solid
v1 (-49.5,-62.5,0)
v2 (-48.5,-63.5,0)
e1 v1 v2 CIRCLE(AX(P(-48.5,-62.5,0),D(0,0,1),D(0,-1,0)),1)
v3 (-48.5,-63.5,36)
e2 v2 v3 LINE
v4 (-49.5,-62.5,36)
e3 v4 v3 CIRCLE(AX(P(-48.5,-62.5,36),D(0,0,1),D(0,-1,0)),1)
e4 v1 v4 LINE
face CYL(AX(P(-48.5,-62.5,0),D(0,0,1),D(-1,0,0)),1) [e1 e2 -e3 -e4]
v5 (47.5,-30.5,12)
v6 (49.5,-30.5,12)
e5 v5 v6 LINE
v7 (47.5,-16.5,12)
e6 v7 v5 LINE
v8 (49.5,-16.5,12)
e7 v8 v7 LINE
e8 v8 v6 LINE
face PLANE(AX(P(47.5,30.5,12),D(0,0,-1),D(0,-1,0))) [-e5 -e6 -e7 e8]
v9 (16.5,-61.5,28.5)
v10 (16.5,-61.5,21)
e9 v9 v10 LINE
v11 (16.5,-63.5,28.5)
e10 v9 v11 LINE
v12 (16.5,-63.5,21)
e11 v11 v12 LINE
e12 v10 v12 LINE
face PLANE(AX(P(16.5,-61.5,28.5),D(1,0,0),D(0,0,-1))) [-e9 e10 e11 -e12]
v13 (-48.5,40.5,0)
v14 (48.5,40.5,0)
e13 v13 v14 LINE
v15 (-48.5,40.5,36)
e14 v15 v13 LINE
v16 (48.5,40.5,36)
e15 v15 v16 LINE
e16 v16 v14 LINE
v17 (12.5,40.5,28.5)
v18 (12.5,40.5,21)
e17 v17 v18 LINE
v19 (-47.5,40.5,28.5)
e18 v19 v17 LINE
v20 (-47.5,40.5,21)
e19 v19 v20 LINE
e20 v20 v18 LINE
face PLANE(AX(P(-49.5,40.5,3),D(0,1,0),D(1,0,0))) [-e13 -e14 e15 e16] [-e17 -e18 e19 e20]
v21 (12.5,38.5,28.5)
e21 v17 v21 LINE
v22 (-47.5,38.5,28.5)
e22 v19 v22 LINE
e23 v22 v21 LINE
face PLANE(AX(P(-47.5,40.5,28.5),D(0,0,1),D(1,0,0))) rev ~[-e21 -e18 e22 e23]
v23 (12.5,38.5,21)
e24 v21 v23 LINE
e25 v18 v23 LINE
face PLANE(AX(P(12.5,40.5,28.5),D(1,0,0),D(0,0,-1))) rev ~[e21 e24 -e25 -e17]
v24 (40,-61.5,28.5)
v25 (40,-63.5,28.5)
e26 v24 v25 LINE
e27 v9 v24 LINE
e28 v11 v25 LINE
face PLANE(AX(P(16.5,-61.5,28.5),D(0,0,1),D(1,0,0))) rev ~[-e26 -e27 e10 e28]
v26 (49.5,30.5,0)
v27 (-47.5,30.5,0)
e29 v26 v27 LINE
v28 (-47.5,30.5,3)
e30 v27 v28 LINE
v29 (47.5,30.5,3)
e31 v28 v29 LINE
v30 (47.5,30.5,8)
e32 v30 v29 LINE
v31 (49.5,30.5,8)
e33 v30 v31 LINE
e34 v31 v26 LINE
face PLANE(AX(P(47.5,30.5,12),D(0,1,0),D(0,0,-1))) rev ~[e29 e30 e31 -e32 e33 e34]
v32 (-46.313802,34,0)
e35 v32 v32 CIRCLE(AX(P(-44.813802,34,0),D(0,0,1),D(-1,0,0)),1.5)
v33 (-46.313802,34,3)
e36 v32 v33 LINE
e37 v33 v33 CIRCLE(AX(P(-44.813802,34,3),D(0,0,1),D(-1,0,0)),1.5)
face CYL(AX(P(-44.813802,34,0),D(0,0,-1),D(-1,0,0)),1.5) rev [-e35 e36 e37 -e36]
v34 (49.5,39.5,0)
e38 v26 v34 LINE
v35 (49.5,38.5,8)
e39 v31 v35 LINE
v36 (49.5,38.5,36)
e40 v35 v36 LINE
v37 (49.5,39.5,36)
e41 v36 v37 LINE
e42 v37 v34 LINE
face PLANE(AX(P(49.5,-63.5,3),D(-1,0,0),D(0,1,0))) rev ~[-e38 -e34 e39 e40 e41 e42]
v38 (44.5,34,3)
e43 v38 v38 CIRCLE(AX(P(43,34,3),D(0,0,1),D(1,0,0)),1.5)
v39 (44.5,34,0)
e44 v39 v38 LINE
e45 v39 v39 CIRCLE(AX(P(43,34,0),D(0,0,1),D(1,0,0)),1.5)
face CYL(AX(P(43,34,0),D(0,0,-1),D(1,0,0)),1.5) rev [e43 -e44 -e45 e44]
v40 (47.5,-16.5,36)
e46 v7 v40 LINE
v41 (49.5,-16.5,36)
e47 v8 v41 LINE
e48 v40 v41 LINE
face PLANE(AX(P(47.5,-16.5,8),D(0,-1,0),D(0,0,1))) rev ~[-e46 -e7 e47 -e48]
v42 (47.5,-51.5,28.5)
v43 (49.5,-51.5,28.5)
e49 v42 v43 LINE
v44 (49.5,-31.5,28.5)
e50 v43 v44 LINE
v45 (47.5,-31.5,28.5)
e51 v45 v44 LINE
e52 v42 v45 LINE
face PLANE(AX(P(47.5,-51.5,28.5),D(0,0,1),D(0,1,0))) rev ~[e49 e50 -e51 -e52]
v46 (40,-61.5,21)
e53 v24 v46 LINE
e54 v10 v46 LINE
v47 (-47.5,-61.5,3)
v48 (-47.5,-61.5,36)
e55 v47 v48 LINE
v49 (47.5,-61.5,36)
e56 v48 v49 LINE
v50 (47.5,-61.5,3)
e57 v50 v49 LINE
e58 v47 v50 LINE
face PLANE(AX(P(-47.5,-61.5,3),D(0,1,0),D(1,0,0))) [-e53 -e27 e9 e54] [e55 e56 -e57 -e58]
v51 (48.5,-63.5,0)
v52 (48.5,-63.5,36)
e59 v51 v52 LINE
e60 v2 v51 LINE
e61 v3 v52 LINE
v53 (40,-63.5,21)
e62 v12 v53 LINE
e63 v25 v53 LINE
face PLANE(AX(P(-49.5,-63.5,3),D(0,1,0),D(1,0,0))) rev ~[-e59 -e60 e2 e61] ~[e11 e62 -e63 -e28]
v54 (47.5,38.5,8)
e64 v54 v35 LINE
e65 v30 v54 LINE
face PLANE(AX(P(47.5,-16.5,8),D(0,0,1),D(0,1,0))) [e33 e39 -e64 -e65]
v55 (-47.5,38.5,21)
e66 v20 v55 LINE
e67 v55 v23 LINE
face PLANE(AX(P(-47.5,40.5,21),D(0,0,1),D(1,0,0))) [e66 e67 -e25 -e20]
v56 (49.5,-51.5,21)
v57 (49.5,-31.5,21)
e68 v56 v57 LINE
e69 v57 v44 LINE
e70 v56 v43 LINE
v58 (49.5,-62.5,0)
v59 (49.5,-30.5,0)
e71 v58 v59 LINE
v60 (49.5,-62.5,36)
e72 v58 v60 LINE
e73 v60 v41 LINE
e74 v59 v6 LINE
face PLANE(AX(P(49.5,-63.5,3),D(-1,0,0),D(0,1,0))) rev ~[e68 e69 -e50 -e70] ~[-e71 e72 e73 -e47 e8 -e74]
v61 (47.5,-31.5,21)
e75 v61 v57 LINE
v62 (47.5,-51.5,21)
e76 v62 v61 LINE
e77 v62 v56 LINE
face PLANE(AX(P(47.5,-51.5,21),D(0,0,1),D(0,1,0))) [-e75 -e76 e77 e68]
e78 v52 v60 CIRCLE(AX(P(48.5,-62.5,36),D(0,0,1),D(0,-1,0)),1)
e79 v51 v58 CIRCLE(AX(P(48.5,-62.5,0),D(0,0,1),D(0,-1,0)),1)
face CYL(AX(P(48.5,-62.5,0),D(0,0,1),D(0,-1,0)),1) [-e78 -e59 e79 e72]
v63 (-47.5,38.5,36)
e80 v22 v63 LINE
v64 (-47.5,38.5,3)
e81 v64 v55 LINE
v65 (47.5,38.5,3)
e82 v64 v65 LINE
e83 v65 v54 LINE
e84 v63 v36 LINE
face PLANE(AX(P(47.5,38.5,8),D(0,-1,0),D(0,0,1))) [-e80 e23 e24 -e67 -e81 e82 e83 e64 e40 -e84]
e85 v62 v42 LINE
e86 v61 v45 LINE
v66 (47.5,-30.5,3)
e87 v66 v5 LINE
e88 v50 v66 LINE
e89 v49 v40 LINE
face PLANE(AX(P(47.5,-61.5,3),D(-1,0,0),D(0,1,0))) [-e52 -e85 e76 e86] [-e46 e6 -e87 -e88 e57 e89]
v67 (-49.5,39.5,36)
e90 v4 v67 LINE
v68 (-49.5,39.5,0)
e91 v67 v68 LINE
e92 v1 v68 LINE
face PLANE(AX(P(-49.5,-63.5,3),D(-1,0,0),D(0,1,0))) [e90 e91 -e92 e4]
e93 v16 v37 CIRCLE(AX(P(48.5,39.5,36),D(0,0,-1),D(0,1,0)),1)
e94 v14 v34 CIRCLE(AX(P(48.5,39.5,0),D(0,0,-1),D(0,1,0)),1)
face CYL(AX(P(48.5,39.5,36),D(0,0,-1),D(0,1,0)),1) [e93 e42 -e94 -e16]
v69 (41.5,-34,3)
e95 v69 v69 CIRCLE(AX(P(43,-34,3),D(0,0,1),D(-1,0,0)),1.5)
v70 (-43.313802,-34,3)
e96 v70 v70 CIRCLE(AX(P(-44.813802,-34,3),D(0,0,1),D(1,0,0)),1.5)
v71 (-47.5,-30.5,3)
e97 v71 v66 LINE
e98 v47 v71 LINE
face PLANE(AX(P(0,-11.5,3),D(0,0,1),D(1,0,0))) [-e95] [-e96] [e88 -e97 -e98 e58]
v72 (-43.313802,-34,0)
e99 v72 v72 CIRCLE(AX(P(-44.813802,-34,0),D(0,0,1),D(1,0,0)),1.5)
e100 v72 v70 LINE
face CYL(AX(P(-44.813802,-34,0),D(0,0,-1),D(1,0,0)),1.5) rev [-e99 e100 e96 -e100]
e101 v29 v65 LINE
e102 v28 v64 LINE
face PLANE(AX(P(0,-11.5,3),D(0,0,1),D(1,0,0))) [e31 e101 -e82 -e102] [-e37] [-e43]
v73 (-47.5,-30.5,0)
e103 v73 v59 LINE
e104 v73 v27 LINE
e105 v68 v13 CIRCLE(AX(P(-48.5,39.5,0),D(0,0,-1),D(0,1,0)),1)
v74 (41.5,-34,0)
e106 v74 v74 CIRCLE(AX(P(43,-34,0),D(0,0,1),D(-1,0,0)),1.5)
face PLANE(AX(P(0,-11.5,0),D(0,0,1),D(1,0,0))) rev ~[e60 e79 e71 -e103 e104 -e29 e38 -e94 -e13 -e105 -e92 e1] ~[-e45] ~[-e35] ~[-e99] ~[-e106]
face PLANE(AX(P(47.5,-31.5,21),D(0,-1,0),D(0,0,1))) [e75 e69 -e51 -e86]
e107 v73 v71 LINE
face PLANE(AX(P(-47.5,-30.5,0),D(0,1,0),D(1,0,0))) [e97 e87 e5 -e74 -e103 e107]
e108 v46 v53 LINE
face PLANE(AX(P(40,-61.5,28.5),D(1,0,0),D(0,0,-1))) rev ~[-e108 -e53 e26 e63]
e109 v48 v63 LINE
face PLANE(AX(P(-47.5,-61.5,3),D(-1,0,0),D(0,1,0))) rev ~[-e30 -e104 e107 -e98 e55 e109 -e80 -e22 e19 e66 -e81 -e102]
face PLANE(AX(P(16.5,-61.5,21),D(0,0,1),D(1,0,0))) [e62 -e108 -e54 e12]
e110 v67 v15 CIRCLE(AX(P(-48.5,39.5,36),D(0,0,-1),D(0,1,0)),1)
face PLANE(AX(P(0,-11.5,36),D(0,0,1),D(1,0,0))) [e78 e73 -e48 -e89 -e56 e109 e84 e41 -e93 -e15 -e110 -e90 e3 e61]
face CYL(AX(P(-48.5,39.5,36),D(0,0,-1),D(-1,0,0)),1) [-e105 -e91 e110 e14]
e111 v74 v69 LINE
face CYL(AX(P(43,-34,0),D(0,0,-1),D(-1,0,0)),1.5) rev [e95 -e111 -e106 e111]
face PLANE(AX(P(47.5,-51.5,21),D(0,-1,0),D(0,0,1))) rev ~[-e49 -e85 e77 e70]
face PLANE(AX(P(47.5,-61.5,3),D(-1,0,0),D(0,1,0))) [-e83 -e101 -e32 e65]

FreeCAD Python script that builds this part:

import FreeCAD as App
import Part
import Sketcher
Q = App.Units.Quantity


def edges_at(feature, points):
    """Names of the edges that pass closest to the given points."""
    edges = feature.Shape.Edges
    near = lambda p: min(range(len(edges)), key=lambda i: edges[i].distToShape(Part.Vertex(*p))[0])
    return sorted({f"Edge{near(p) + 1}" for p in points})

doc = App.newDocument("Part")
body = doc.addObject("PartDesign::Body", "Body")

# Sketch on XY plane
sketch1 = doc.addObject("Sketcher::SketchObject", "Sketch")
body.addObject(sketch1)
sketch1.AttachmentSupport = (doc.XY_Plane, [""])
sketch1.MapMode = "FlatFace"
sketch1.addGeometry([
    Part.LineSegment(App.Vector(-49.5, 40.5, 0), App.Vector(-49.5, -63.5, 0)),  # 0
    Part.LineSegment(App.Vector(-49.5, -63.5, 0), App.Vector(49.5, -63.5, 0)),  # 1
    Part.LineSegment(App.Vector(49.5, -63.5, 0), App.Vector(49.5, 40.5, 0)),  # 2
    Part.LineSegment(App.Vector(49.5, 40.5, 0), App.Vector(-49.5, 40.5, 0)),  # 3
    Part.Circle(App.Vector(-44.8, -34, 0), App.Vector(0, 0, 1), 1.5),  # 4
    Part.Circle(App.Vector(43, -34, 0), App.Vector(0, 0, 1), 1.5),  # 5
    Part.Circle(App.Vector(-44.8, 34, 0), App.Vector(0, 0, 1), 1.5),  # 6
    Part.LineSegment(App.Vector(47.5, -30.5, 0), App.Vector(-47.5, -30.5, 0)),  # 7
    Part.LineSegment(App.Vector(-47.5, -30.5, 0), App.Vector(-47.5, 30.5, 0)),  # 8
    Part.LineSegment(App.Vector(-47.5, 30.5, 0), App.Vector(47.5, 30.5, 0)),  # 9
    Part.LineSegment(App.Vector(47.5, 30.5, 0), App.Vector(47.5, -30.5, 0)),  # 10
    Part.Circle(App.Vector(43, 34, 0), App.Vector(0, 0, 1), 1.5),  # 11
], False)
sketch1.addConstraint([
    Sketcher.Constraint("Coincident", 0, 2, 1, 1),
    Sketcher.Constraint("Coincident", 1, 2, 2, 1),
    Sketcher.Constraint("Coincident", 2, 2, 3, 1),
    Sketcher.Constraint("Coincident", 3, 2, 0, 1),
    Sketcher.Constraint("Coincident", 7, 2, 8, 1),
    Sketcher.Constraint("Coincident", 8, 2, 9, 1),
    Sketcher.Constraint("Coincident", 9, 2, 10, 1),
    Sketcher.Constraint("Coincident", 10, 2, 7, 1),
    Sketcher.Constraint("Vertical", 0),
    Sketcher.Constraint("Horizontal", 1),
    Sketcher.Constraint("Vertical", 2),
    Sketcher.Constraint("Horizontal", 3),
    Sketcher.Constraint("Horizontal", 7),
    Sketcher.Constraint("Vertical", 8),
    Sketcher.Constraint("Horizontal", 9),
    Sketcher.Constraint("Vertical", 10),
    Sketcher.Constraint("Equal", 4, 5),
    Sketcher.Constraint("Equal", 5, 6),
    Sketcher.Constraint("Equal", 6, 11),
    Sketcher.Constraint("Symmetric", 7, 2, 9, 2, -1, 1),
    Sketcher.Constraint("Symmetric", 4, 3, 6, 3, -1),
    Sketcher.Constraint("Symmetric", 5, 3, 11, 3, -1),
    Sketcher.Constraint("Horizontal", 4, 3, 5, 3),
    Sketcher.Constraint("Diameter", 4, Q("3 mm")),
    Sketcher.Constraint("DistanceX", 1, 1, 1, 2, Q("99 mm")),
    Sketcher.Constraint("DistanceX", 7, 2, 7, 1, Q("95 mm")),
    Sketcher.Constraint("DistanceY", 0, 2, 0, 1, Q("104 mm")),
    Sketcher.Constraint("DistanceY", 8, 1, 8, 2, Q("61 mm")),
    Sketcher.Constraint("DistanceY", 4, 3, -1, 1, Q("34 mm")),
    Sketcher.Constraint("DistanceX", -1, 1, 5, 3, Q("43 mm")),
    Sketcher.Constraint("DistanceX", 0, 2, 7, 2, Q("2 mm")),
    Sketcher.Constraint("DistanceY", 0, 2, 7, 2, Q("33 mm")),
    Sketcher.Constraint("DistanceX", 4, 3, -1, 1, Q("44.813802 mm")),
])
pad1 = doc.addObject("PartDesign::Pad", "Pad")
body.addObject(pad1)
pad1.Profile = sketch1
pad1.Length = 3

# Sketch on XY plane
sketch2 = doc.addObject("Sketcher::SketchObject", "Sketch001")
body.addObject(sketch2)
sketch2.AttachmentSupport = (doc.XY_Plane, [""])
sketch2.MapMode = "FlatFace"
sketch2.AttachmentOffset = App.Placement(App.Vector(0, 0, 3), App.Rotation())
sketch2.addGeometry([
    Part.LineSegment(App.Vector(-50, 40, 0), App.Vector(-50, -64, 0)),  # 0
    Part.LineSegment(App.Vector(-50, -64, 0), App.Vector(50, -64, 0)),  # 1
    Part.LineSegment(App.Vector(50, -64, 0), App.Vector(50, 40, 0)),  # 2
    Part.LineSegment(App.Vector(50, 40, 0), App.Vector(-50, 40, 0)),  # 3
    Part.LineSegment(App.Vector(48, -62, 0), App.Vector(-48, -62, 0)),  # 4
    Part.LineSegment(App.Vector(-48, -62, 0), App.Vector(-48, 38, 0)),  # 5
    Part.LineSegment(App.Vector(-48, 38, 0), App.Vector(48, 38, 0)),  # 6
    Part.LineSegment(App.Vector(48, 38, 0), App.Vector(48, -62, 0)),  # 7
], False)
sketch2.addConstraint([
    Sketcher.Constraint("Coincident", 0, 2, 1, 1),
    Sketcher.Constraint("Coincident", 1, 2, 2, 1),
    Sketcher.Constraint("Coincident", 2, 2, 3, 1),
    Sketcher.Constraint("Coincident", 3, 2, 0, 1),
    Sketcher.Constraint("Coincident", 4, 2, 5, 1),
    Sketcher.Constraint("Coincident", 5, 2, 6, 1),
    Sketcher.Constraint("Coincident", 6, 2, 7, 1),
    Sketcher.Constraint("Coincident", 7, 2, 4, 1),
    Sketcher.Constraint("Vertical", 0),
    Sketcher.Constraint("Horizontal", 1),
    Sketcher.Constraint("Vertical", 2),
    Sketcher.Constraint("Horizontal", 3),
    Sketcher.Constraint("Horizontal", 4),
    Sketcher.Constraint("Vertical", 5),
    Sketcher.Constraint("Horizontal", 6),
    Sketcher.Constraint("Vertical", 7),
    Sketcher.Constraint("DistanceX", 1, 1, 1, 2, Q("99 mm")),
    Sketcher.Constraint("DistanceX", 4, 2, 4, 1, Q("95 mm")),
    Sketcher.Constraint("DistanceY", 0, 2, 0, 1, Q("104 mm")),
    Sketcher.Constraint("DistanceY", 5, 1, 5, 2, Q("100 mm")),
    Sketcher.Constraint("DistanceX", 0, 2, 4, 2, Q("2 mm")),
    Sketcher.Constraint("DistanceY", 0, 2, 4, 2, Q("2 mm")),
    Sketcher.Constraint("DistanceX", 0, 2, -1, 1, Q("49.5 mm")),
    Sketcher.Constraint("DistanceY", 0, 2, -1, 1, Q("63.5 mm")),
])
pad2 = doc.addObject("PartDesign::Pad", "Pad001")
body.addObject(pad2)
pad2.Profile = sketch2
pad2.Length = 33

# Sketch on YZ plane
sketch3 = doc.addObject("Sketcher::SketchObject", "Sketch002")
body.addObject(sketch3)
sketch3.AttachmentSupport = (doc.YZ_Plane, [""])
sketch3.MapMode = "FlatFace"
sketch3.AttachmentOffset = App.Placement(App.Vector(0, 0, 47.5), App.Rotation())
sketch3.addGeometry([
    Part.LineSegment(App.Vector(30, 12, 0), App.Vector(30, 0, 0)),
    Part.LineSegment(App.Vector(30, 0, 0), App.Vector(-30, 0, 0)),
    Part.LineSegment(App.Vector(-30, 0, 0), App.Vector(-30, 12, 0)),
    Part.LineSegment(App.Vector(-30, 12, 0), App.Vector(30, 12, 0)),
], False)
sketch3.addConstraint([
    Sketcher.Constraint("Coincident", 0, 2, 1, 1),
    Sketcher.Constraint("Coincident", 1, 2, 2, 1),
    Sketcher.Constraint("Coincident", 2, 2, 3, 1),
    Sketcher.Constraint("Coincident", 3, 2, 0, 1),
    Sketcher.Constraint("Vertical", 0),
    Sketcher.Constraint("Horizontal", 1),
    Sketcher.Constraint("Vertical", 2),
    Sketcher.Constraint("Horizontal", 3),
    Sketcher.Constraint("Symmetric", 0, 2, 1, 2, -1, 1),
    Sketcher.Constraint("DistanceX", 1, 2, 1, 1, Q("61 mm")),
    Sketcher.Constraint("DistanceY", 0, 2, 0, 1, Q("12 mm")),
])
pocket1 = doc.addObject("PartDesign::Pocket", "Pocket")
body.addObject(pocket1)
pocket1.Profile = sketch3
pocket1.Length = 30
pocket1.Reversed = True

# Sketch on XZ plane
sketch4 = doc.addObject("Sketcher::SketchObject", "Sketch003")
body.addObject(sketch4)
sketch4.AttachmentSupport = (doc.XZ_Plane, [""])
sketch4.MapMode = "FlatFace"
sketch4.AttachmentOffset = App.Placement(App.Vector(0, 0, -40.5), App.Rotation())
sketch4.addGeometry([
    Part.LineSegment(App.Vector(-48, 21, 0), App.Vector(-48, 28, 0)),
    Part.LineSegment(App.Vector(-48, 28, 0), App.Vector(12, 28, 0)),
    Part.LineSegment(App.Vector(12, 28, 0), App.Vector(12, 21, 0)),
    Part.LineSegment(App.Vector(12, 21, 0), App.Vector(-48, 21, 0)),
], False)
sketch4.addConstraint([
    Sketcher.Constraint("Coincident", 0, 2, 1, 1),
    Sketcher.Constraint("Coincident", 1, 2, 2, 1),
    Sketcher.Constraint("Coincident", 2, 2, 3, 1),
    Sketcher.Constraint("Coincident", 3, 2, 0, 1),
    Sketcher.Constraint("Vertical", 0),
    Sketcher.Constraint("Horizontal", 1),
    Sketcher.Constraint("Vertical", 2),
    Sketcher.Constraint("Horizontal", 3),
    Sketcher.Constraint("DistanceX", 1, 1, 1, 2, Q("60 mm")),
    Sketcher.Constraint("DistanceY", 0, 1, 0, 2, Q("7.5 mm")),
    Sketcher.Constraint("DistanceY", -1, 1, 2, 2, Q("21 mm")),
    Sketcher.Constraint("DistanceX", 0, 2, -1, 1, Q("47.5 mm")),
])
pocket2 = doc.addObject("PartDesign::Pocket", "Pocket001")
body.addObject(pocket2)
pocket2.Profile = sketch4
pocket2.Length = 30
pocket2.Reversed = True

# Sketch on YZ plane
sketch5 = doc.addObject("Sketcher::SketchObject", "Sketch004")
body.addObject(sketch5)
sketch5.AttachmentSupport = (doc.YZ_Plane, [""])
sketch5.MapMode = "FlatFace"
sketch5.AttachmentOffset = App.Placement(App.Vector(0, 0, 47.5), App.Rotation())
sketch5.addGeometry([
    Part.LineSegment(App.Vector(38, 8, 0), App.Vector(-16, 8, 0)),
    Part.LineSegment(App.Vector(-16, 8, 0), App.Vector(-16, 36, 0)),
    Part.LineSegment(App.Vector(-16, 36, 0), App.Vector(38, 36, 0)),
    Part.LineSegment(App.Vector(38, 36, 0), App.Vector(38, 8, 0)),
], False)
sketch5.addConstraint([
    Sketcher.Constraint("Coincident", 0, 2, 1, 1),
    Sketcher.Constraint("Coincident", 1, 2, 2, 1),
    Sketcher.Constraint("Coincident", 2, 2, 3, 1),
    Sketcher.Constraint("Coincident", 3, 2, 0, 1),
    Sketcher.Constraint("Horizontal", 0),
    Sketcher.Constraint("Vertical", 1),
    Sketcher.Constraint("Horizontal", 2),
    Sketcher.Constraint("Vertical", 3),
    Sketcher.Constraint("DistanceX", 0, 2, 0, 1, Q("55 mm")),
    Sketcher.Constraint("DistanceY", 1, 1, 1, 2, Q("28 mm")),
    Sketcher.Constraint("DistanceY", -1, 1, 0, 2, Q("8 mm")),
    Sketcher.Constraint("DistanceX", 0, 2, -1, 1, Q("16.5 mm")),
])
pocket3 = doc.addObject("PartDesign::Pocket", "Pocket002")
body.addObject(pocket3)
pocket3.Profile = sketch5
pocket3.Length = 30
pocket3.Reversed = True

# Sketch on YZ plane
sketch6 = doc.addObject("Sketcher::SketchObject", "Sketch005")
body.addObject(sketch6)
sketch6.AttachmentSupport = (doc.YZ_Plane, [""])
sketch6.MapMode = "FlatFace"
sketch6.AttachmentOffset = App.Placement(App.Vector(0, 0, 47.5), App.Rotation())
sketch6.addGeometry([
    Part.LineSegment(App.Vector(-32, 21, 0), App.Vector(-52, 21, 0)),
    Part.LineSegment(App.Vector(-52, 21, 0), App.Vector(-52, 28, 0)),
    Part.LineSegment(App.Vector(-52, 28, 0), App.Vector(-32, 28, 0)),
    Part.LineSegment(App.Vector(-32, 28, 0), App.Vector(-32, 21, 0)),
], False)
sketch6.addConstraint([
    Sketcher.Constraint("Coincident", 0, 2, 1, 1),
    Sketcher.Constraint("Coincident", 1, 2, 2, 1),
    Sketcher.Constraint("Coincident", 2, 2, 3, 1),
    Sketcher.Constraint("Coincident", 3, 2, 0, 1),
    Sketcher.Constraint("Horizontal", 0),
    Sketcher.Constraint("Vertical", 1),
    Sketcher.Constraint("Horizontal", 2),
    Sketcher.Constraint("Vertical", 3),
    Sketcher.Constraint("DistanceX", 0, 2, 0, 1, Q("20 mm")),
    Sketcher.Constraint("DistanceY", 1, 1, 1, 2, Q("7.5 mm")),
    Sketcher.Constraint("DistanceY", -1, 1, 0, 2, Q("21 mm")),
    Sketcher.Constraint("DistanceX", 0, 2, -1, 1, Q("51.5 mm")),
])
pocket4 = doc.addObject("PartDesign::Pocket", "Pocket003")
body.addObject(pocket4)
pocket4.Profile = sketch6
pocket4.Length = 30
pocket4.Reversed = True

# Sketch on XZ plane
sketch7 = doc.addObject("Sketcher::SketchObject", "Sketch006")
body.addObject(sketch7)
sketch7.AttachmentSupport = (doc.XZ_Plane, [""])
sketch7.MapMode = "FlatFace"
sketch7.AttachmentOffset = App.Placement(App.Vector(0, 0, 61.5), App.Rotation())
sketch7.addGeometry([
    Part.LineSegment(App.Vector(16, 21, 0), App.Vector(16, 28, 0)),
    Part.LineSegment(App.Vector(16, 28, 0), App.Vector(40, 28, 0)),
    Part.LineSegment(App.Vector(40, 28, 0), App.Vector(40, 21, 0)),
    Part.LineSegment(App.Vector(40, 21, 0), App.Vector(16, 21, 0)),
], False)
sketch7.addConstraint([
    Sketcher.Constraint("Coincident", 0, 2, 1, 1),
    Sketcher.Constraint("Coincident", 1, 2, 2, 1),
    Sketcher.Constraint("Coincident", 2, 2, 3, 1),
    Sketcher.Constraint("Coincident", 3, 2, 0, 1),
    Sketcher.Constraint("Vertical", 0),
    Sketcher.Constraint("Horizontal", 1),
    Sketcher.Constraint("Vertical", 2),
    Sketcher.Constraint("Horizontal", 3),
    Sketcher.Constraint("DistanceX", 1, 1, 1, 2, Q("23.5 mm")),
    Sketcher.Constraint("DistanceY", 0, 1, 0, 2, Q("7.5 mm")),
    Sketcher.Constraint("DistanceX", -1, 1, 1, 2, Q("40 mm")),
    Sketcher.Constraint("DistanceY", -1, 1, 2, 2, Q("21 mm")),
])
pocket5 = doc.addObject("PartDesign::Pocket", "Pocket004")
body.addObject(pocket5)
pocket5.Profile = sketch7
pocket5.Length = 30
pocket5.Reversed = True
doc.recompute()

fillet = doc.addObject("PartDesign::Fillet", "Fillet")
body.addObject(fillet)
fillet.Base = (pocket5, edges_at(pocket5, [
    (-49.5, 40.5, 18),
    (49.5, 40.5, 18),
    (49.5, -63.5, 18),
    (-49.5, -63.5, 18),
]))
fillet.Radius = 1

doc.recompute()
